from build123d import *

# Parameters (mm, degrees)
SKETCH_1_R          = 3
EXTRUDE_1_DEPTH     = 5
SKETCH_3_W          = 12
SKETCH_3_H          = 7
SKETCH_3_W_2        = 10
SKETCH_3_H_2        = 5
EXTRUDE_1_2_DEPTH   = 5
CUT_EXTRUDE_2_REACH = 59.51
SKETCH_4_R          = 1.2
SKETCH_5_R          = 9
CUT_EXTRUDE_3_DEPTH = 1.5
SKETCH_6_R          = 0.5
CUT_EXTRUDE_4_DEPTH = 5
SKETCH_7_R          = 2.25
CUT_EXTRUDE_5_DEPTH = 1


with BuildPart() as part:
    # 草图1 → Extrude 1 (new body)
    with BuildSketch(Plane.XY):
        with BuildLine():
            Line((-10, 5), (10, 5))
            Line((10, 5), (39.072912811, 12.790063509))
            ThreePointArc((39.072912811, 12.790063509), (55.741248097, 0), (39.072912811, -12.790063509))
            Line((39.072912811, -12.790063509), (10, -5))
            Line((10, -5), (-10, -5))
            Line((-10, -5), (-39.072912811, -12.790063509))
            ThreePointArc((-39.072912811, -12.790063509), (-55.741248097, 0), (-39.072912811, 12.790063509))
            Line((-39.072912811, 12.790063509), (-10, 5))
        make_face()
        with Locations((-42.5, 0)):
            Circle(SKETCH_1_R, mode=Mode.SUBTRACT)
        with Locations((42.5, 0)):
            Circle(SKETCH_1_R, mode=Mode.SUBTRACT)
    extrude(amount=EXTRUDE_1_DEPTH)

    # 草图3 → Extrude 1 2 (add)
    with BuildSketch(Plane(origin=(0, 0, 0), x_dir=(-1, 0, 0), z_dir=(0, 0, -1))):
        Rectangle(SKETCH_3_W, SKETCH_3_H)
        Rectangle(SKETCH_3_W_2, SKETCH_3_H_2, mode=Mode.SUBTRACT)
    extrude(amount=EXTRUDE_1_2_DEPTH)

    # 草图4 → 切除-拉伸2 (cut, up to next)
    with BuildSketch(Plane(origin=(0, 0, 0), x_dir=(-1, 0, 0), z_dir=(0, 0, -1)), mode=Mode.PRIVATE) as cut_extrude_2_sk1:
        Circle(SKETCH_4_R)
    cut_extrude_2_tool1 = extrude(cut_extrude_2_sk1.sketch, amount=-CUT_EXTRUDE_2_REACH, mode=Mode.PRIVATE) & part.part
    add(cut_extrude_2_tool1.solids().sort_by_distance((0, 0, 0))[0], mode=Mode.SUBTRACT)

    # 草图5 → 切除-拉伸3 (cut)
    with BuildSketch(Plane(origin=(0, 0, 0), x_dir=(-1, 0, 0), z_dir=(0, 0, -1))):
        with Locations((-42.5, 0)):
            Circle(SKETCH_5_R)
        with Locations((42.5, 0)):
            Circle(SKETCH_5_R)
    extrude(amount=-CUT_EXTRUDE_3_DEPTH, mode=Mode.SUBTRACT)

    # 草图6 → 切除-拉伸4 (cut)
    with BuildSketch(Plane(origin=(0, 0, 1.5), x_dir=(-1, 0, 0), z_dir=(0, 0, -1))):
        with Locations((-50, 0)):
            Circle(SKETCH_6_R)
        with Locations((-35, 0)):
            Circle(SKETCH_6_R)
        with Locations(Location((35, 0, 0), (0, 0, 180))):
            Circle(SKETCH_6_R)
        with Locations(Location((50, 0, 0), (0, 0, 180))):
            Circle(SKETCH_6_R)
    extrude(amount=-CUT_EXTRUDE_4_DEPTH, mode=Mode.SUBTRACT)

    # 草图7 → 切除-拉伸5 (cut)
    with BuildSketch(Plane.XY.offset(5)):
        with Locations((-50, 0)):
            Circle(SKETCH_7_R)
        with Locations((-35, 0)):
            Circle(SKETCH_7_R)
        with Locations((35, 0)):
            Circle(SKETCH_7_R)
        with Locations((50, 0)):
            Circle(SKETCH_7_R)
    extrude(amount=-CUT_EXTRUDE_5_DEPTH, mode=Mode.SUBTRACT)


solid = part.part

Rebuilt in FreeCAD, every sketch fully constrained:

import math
import FreeCAD as App
import Part
import Sketcher
Q = App.Units.Quantity

doc = App.newDocument("Part")
body = doc.addObject("PartDesign::Body", "Body")

# Sketch on XY plane
sketch1 = body.newObject("Sketcher::SketchObject", "Sketch")
sketch1.AttachmentSupport = (doc.getObject("XY_Plane"), [""])
sketch1.MapMode = "FlatFace"
sketch1.addGeometry(Part.LineSegment(App.Vector(10, 5, 0), App.Vector(-10, 5, 0)), False)
sketch1.addGeometry(Part.LineSegment(App.Vector(-10, 5, 0), App.Vector(-39.072913, 12.790064, 0)), False)
sketch1.addGeometry(Part.ArcOfCircle(Part.Circle(App.Vector(-42.5, 0, 0), App.Vector(0, 0, 1), 13.241248), math.radians(75), math.radians(285)), False)
sketch1.addGeometry(Part.LineSegment(App.Vector(-39.072913, -12.790064, 0), App.Vector(-10, -5, 0)), False)
sketch1.addGeometry(Part.LineSegment(App.Vector(-10, -5, 0), App.Vector(10, -5, 0)), False)
sketch1.addGeometry(Part.LineSegment(App.Vector(10, -5, 0), App.Vector(39.072913, -12.790064, 0)), False)
sketch1.addGeometry(Part.ArcOfCircle(Part.Circle(App.Vector(42.5, 0, 0), App.Vector(0, 0, 1), 13.241248), math.radians(-105), math.radians(105)), False)
sketch1.addGeometry(Part.LineSegment(App.Vector(39.072913, 12.790064, 0), App.Vector(10, 5, 0)), False)
sketch1.addGeometry(Part.Circle(App.Vector(42.5, 0, 0), App.Vector(0, 0, 1), 3), False)
sketch1.addGeometry(Part.Circle(App.Vector(-42.5, 0, 0), App.Vector(0, 0, 1), 3), False)
sketch1.addConstraint(Sketcher.Constraint("Coincident", 0, 2, 1, 1))
sketch1.addConstraint(Sketcher.Constraint("Tangent", 1, 2, 2, 1))
sketch1.addConstraint(Sketcher.Constraint("Tangent", 2, 2, 3, 1))
sketch1.addConstraint(Sketcher.Constraint("Coincident", 3, 2, 4, 1))
sketch1.addConstraint(Sketcher.Constraint("Coincident", 4, 2, 5, 1))
sketch1.addConstraint(Sketcher.Constraint("Tangent", 5, 2, 6, 1))
sketch1.addConstraint(Sketcher.Constraint("Tangent", 6, 2, 7, 1))
sketch1.addConstraint(Sketcher.Constraint("Coincident", 7, 2, 0, 1))
sketch1.addConstraint(Sketcher.Constraint("Horizontal", 0))
sketch1.addConstraint(Sketcher.Constraint("Horizontal", 4))
sketch1.addConstraint(Sketcher.Constraint("Coincident", 8, 3, 6, 3))
sketch1.addConstraint(Sketcher.Constraint("Coincident", 9, 3, 2, 3))
sketch1.addConstraint(Sketcher.Constraint("Equal", 2, 6))
sketch1.addConstraint(Sketcher.Constraint("Equal", 8, 9))
sketch1.addConstraint(Sketcher.Constraint("Symmetric", 2, 3, 6, 3, -1, 1))
sketch1.addConstraint(Sketcher.Constraint("Symmetric", 0, 2, 4, 2, -1, 1))
sketch1.addConstraint(Sketcher.Constraint("Symmetric", 2, 2, 5, 2, -2))
sketch1.addConstraint(Sketcher.Constraint("Parallel", 3, 7))
sketch1.addConstraint(Sketcher.Constraint("Diameter", 8, Q("6 mm")))
sketch1.addConstraint(Sketcher.Constraint("DistanceX", 0, 2, 0, 1, Q("20 mm")))
sketch1.addConstraint(Sketcher.Constraint("Angle", 1, Q("165 deg")))
sketch1.addConstraint(Sketcher.Constraint("DistanceY", -1, 1, 0, 2, Q("5 mm")))
sketch1.addConstraint(Sketcher.Constraint("DistanceX", 2, 3, 6, 3, Q("85 mm")))
pad1 = body.newObject("PartDesign::Pad", "Pad")
pad1.Profile = sketch1
pad1.Length = 5

# Sketch on XY plane
sketch2 = body.newObject("Sketcher::SketchObject", "Sketch001")
sketch2.AttachmentSupport = (doc.getObject("XY_Plane"), [""])
sketch2.MapMode = "FlatFace"
sketch2.addGeometry(Part.LineSegment(App.Vector(6, 3.5, 0), App.Vector(6, -3.5, 0)), False)
sketch2.addGeometry(Part.LineSegment(App.Vector(6, -3.5, 0), App.Vector(-6, -3.5, 0)), False)
sketch2.addGeometry(Part.LineSegment(App.Vector(-6, -3.5, 0), App.Vector(-6, 3.5, 0)), False)
sketch2.addGeometry(Part.LineSegment(App.Vector(-6, 3.5, 0), App.Vector(6, 3.5, 0)), False)
sketch2.addGeometry(Part.LineSegment(App.Vector(-5, -2.5, 0), App.Vector(5, -2.5, 0)), False)
sketch2.addGeometry(Part.LineSegment(App.Vector(5, -2.5, 0), App.Vector(5, 2.5, 0)), False)
sketch2.addGeometry(Part.LineSegment(App.Vector(5, 2.5, 0), App.Vector(-5, 2.5, 0)), False)
sketch2.addGeometry(Part.LineSegment(App.Vector(-5, 2.5, 0), App.Vector(-5, -2.5, 0)), False)
sketch2.addConstraint(Sketcher.Constraint("Coincident", 0, 2, 1, 1))
sketch2.addConstraint(Sketcher.Constraint("Coincident", 1, 2, 2, 1))
sketch2.addConstraint(Sketcher.Constraint("Coincident", 2, 2, 3, 1))
sketch2.addConstraint(Sketcher.Constraint("Coincident", 3, 2, 0, 1))
sketch2.addConstraint(Sketcher.Constraint("Coincident", 4, 2, 5, 1))
sketch2.addConstraint(Sketcher.Constraint("Coincident", 5, 2, 6, 1))
sketch2.addConstraint(Sketcher.Constraint("Coincident", 6, 2, 7, 1))
sketch2.addConstraint(Sketcher.Constraint("Coincident", 7, 2, 4, 1))
sketch2.addConstraint(Sketcher.Constraint("Vertical", 0))
sketch2.addConstraint(Sketcher.Constraint("Horizontal", 1))
sketch2.addConstraint(Sketcher.Constraint("Vertical", 2))
sketch2.addConstraint(Sketcher.Constraint("Horizontal", 3))
sketch2.addConstraint(Sketcher.Constraint("Horizontal", 4))
sketch2.addConstraint(Sketcher.Constraint("Vertical", 5))
sketch2.addConstraint(Sketcher.Constraint("Horizontal", 6))
sketch2.addConstraint(Sketcher.Constraint("Vertical", 7))
sketch2.addConstraint(Sketcher.Constraint("Symmetric", 0, 2, 2, 2, -1, 1))
sketch2.addConstraint(Sketcher.Constraint("Symmetric", 4, 2, 6, 2, -1, 1))
sketch2.addConstraint(Sketcher.Constraint("DistanceX", 1, 2, 1, 1, Q("12 mm")))
sketch2.addConstraint(Sketcher.Constraint("DistanceX", 4, 1, 4, 2, Q("10 mm")))
sketch2.addConstraint(Sketcher.Constraint("DistanceY", 0, 2, 0, 1, Q("7 mm")))
sketch2.addConstraint(Sketcher.Constraint("DistanceY", 5, 1, 5, 2, Q("5 mm")))
pad2 = body.newObject("PartDesign::Pad", "Pad001")
pad2.Profile = sketch2
pad2.Length = 5
pad2.Reversed = True

# Sketch on XY plane
sketch3 = body.newObject("Sketcher::SketchObject", "Sketch002")
sketch3.AttachmentSupport = (doc.getObject("XY_Plane"), [""])
sketch3.MapMode = "FlatFace"
sketch3.addGeometry(Part.Circle(App.Vector(0, 0, 0), App.Vector(0, 0, 1), 1.2), False)
sketch3.addConstraint(Sketcher.Constraint("Coincident", 0, 3, -1, 1))
sketch3.addConstraint(Sketcher.Constraint("Diameter", 0, Q("2.4 mm")))
pocket1 = body.newObject("PartDesign::Pocket", "Pocket")
pocket1.Profile = sketch3
pocket1.Type = "UpToFirst"
pocket1.Reversed = True

# Sketch on XY plane
sketch4 = body.newObject("Sketcher::SketchObject", "Sketch003")
sketch4.AttachmentSupport = (doc.getObject("XY_Plane"), [""])
sketch4.MapMode = "FlatFace"
sketch4.addGeometry(Part.Circle(App.Vector(42.5, 0, 0), App.Vector(0, 0, 1), 9), False)
sketch4.addGeometry(Part.Circle(App.Vector(-42.5, 0, 0), App.Vector(0, 0, 1), 9), False)
sketch4.addConstraint(Sketcher.Constraint("Equal", 0, 1))
sketch4.addConstraint(Sketcher.Constraint("Symmetric", 0, 3, 1, 3, -1, 1))
sketch4.addConstraint(Sketcher.Constraint("PointOnObject", 0, 3, -1))
sketch4.addConstraint(Sketcher.Constraint("Diameter", 0, Q("18 mm")))
sketch4.addConstraint(Sketcher.Constraint("DistanceX", 1, 3, 0, 3, Q("85 mm")))
pocket2 = body.newObject("PartDesign::Pocket", "Pocket001")
pocket2.Profile = sketch4
pocket2.Length = 1.5
pocket2.Reversed = True

# Sketch on XY plane
sketch5 = body.newObject("Sketcher::SketchObject", "Sketch004")
sketch5.AttachmentSupport = (doc.getObject("XY_Plane"), [""])
sketch5.MapMode = "FlatFace"
sketch5.AttachmentOffset = App.Placement(App.Vector(0, 0, 1.5), App.Rotation())
sketch5.addGeometry(Part.Circle(App.Vector(50, 0, 0), App.Vector(0, 0, 1), 0.5), False)
sketch5.addGeometry(Part.Circle(App.Vector(35, 0, 0), App.Vector(0, 0, 1), 0.5), False)
sketch5.addGeometry(Part.Circle(App.Vector(-35, 0, 0), App.Vector(0, 0, 1), 0.5), False)
sketch5.addGeometry(Part.Circle(App.Vector(-50, 0, 0), App.Vector(0, 0, 1), 0.5), False)
sketch5.addConstraint(Sketcher.Constraint("Equal", 0, 1))
sketch5.addConstraint(Sketcher.Constraint("Equal", 1, 2))
sketch5.addConstraint(Sketcher.Constraint("Equal", 2, 3))
sketch5.addConstraint(Sketcher.Constraint("Symmetric", 1, 3, 2, 3, -1, 1))
sketch5.addConstraint(Sketcher.Constraint("Symmetric", 0, 3, 3, 3, -1, 1))
sketch5.addConstraint(Sketcher.Constraint("PointOnObject", 0, 3, -1))
sketch5.addConstraint(Sketcher.Constraint("PointOnObject", 1, 3, -1))
sketch5.addConstraint(Sketcher.Constraint("Diameter", 0, Q("1 mm")))
sketch5.addConstraint(Sketcher.Constraint("DistanceX", -1, 1, 0, 3, Q("50 mm")))
sketch5.addConstraint(Sketcher.Constraint("DistanceX", -1, 1, 1, 3, Q("35 mm")))
pocket3 = body.newObject("PartDesign::Pocket", "Pocket002")
pocket3.Profile = sketch5
pocket3.Length = 5
pocket3.Reversed = True

# Sketch on XY plane
sketch6 = body.newObject("Sketcher::SketchObject", "Sketch005")
sketch6.AttachmentSupport = (doc.getObject("XY_Plane"), [""])
sketch6.MapMode = "FlatFace"
sketch6.AttachmentOffset = App.Placement(App.Vector(0, 0, 5), App.Rotation())
sketch6.addGeometry(Part.Circle(App.Vector(-50, 0, 0), App.Vector(0, 0, 1), 2.25), False)
sketch6.addGeometry(Part.Circle(App.Vector(-35, 0, 0), App.Vector(0, 0, 1), 2.25), False)
sketch6.addGeometry(Part.Circle(App.Vector(35, 0, 0), App.Vector(0, 0, 1), 2.25), False)
sketch6.addGeometry(Part.Circle(App.Vector(50, 0, 0), App.Vector(0, 0, 1), 2.25), False)
sketch6.addConstraint(Sketcher.Constraint("Equal", 0, 1))
sketch6.addConstraint(Sketcher.Constraint("Equal", 1, 2))
sketch6.addConstraint(Sketcher.Constraint("Equal", 2, 3))
sketch6.addConstraint(Sketcher.Constraint("Symmetric", 1, 3, 2, 3, -1, 1))
sketch6.addConstraint(Sketcher.Constraint("Symmetric", 0, 3, 3, 3, -1, 1))
sketch6.addConstraint(Sketcher.Constraint("PointOnObject", 0, 3, -1))
sketch6.addConstraint(Sketcher.Constraint("PointOnObject", 1, 3, -1))
sketch6.addConstraint(Sketcher.Constraint("Diameter", 0, Q("4.5 mm")))
sketch6.addConstraint(Sketcher.Constraint("DistanceX", 0, 3, -1, 1, Q("50 mm")))
sketch6.addConstraint(Sketcher.Constraint("DistanceX", 1, 3, -1, 1, Q("35 mm")))
pocket4 = body.newObject("PartDesign::Pocket", "Pocket003")
pocket4.Profile = sketch6
pocket4.Length = 1

doc.recompute()
